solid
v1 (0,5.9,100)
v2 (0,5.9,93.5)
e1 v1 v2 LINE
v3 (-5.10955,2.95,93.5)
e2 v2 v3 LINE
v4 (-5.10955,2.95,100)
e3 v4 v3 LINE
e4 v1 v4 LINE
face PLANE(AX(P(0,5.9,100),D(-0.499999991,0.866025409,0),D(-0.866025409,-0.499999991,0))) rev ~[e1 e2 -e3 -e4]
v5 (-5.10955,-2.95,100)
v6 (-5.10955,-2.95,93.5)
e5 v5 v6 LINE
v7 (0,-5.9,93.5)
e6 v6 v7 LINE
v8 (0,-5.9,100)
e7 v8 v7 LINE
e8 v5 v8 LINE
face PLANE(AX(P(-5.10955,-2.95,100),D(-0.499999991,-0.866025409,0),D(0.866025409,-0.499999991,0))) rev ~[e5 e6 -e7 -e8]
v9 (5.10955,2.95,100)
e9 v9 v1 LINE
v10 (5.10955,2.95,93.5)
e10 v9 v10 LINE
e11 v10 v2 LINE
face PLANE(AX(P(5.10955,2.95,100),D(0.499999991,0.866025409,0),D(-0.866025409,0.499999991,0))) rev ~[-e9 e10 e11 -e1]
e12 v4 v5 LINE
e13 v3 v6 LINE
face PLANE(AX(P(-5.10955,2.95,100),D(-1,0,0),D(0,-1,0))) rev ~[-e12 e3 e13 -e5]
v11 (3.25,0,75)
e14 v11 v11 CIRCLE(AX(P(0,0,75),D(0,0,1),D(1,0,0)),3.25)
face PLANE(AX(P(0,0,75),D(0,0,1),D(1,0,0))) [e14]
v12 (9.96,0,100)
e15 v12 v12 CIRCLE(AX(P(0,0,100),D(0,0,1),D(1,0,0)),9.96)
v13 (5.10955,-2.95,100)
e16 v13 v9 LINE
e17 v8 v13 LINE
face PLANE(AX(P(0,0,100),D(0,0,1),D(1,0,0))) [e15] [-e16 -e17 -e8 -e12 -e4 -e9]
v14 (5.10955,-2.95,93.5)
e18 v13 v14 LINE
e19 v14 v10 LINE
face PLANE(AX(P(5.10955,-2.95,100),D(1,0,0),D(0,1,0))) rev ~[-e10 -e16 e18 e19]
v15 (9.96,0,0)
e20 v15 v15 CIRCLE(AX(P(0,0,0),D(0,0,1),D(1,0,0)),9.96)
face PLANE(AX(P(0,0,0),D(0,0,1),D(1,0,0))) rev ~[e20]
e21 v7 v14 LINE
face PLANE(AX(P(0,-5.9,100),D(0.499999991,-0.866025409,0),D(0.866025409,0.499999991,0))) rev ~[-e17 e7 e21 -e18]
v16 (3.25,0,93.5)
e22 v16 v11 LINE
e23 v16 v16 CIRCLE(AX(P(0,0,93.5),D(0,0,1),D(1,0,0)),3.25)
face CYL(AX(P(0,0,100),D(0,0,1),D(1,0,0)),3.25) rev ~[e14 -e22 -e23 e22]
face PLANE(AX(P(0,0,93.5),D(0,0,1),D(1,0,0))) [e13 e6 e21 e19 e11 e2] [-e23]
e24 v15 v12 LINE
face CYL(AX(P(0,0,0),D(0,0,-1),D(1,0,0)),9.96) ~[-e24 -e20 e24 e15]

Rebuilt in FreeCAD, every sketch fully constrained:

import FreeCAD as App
import Part
import Sketcher
from FreeCAD import Vector
Q = App.Units.Quantity

doc = App.newDocument("Part")
body = doc.addObject("PartDesign::Body", "Body")

# Sketch on XY plane
sketch1 = body.newObject("Sketcher::SketchObject", "Sketch")
sketch1.AttachmentSupport = (doc.getObject("XY_Plane"), [""])
sketch1.MapMode = "FlatFace"
sketch1.addGeometry(Part.Circle(Vector(0, 0, 0), Vector(0, 0, 1), 10), False)
sketch1.addConstraint(Sketcher.Constraint("Coincident", 0, 3, -1, 1))
sketch1.addConstraint(Sketcher.Constraint("Diameter", 0, Q("19.92 mm")))
pad1 = body.newObject("PartDesign::Pad", "Pad")
pad1.Profile = sketch1
pad1.Length = 100

# Sketch on XY plane
sketch2 = body.newObject("Sketcher::SketchObject", "Sketch001")
sketch2.AttachmentSupport = (doc.getObject("XY_Plane"), [""])
sketch2.MapMode = "FlatFace"
sketch2.AttachmentOffset = App.Placement(Vector(0, 0, 100), App.Rotation())
sketch2.addGeometry(Part.Circle(Vector(0, 0, 0), Vector(0, 0, 1), 3.2), False)
sketch2.addConstraint(Sketcher.Constraint("Coincident", 0, 3, -1, 1))
sketch2.addConstraint(Sketcher.Constraint("Diameter", 0, Q("6.5 mm")))
pocket1 = body.newObject("PartDesign::Pocket", "Pocket")
pocket1.Profile = sketch2
pocket1.Length = 25

# Sketch on XY plane
sketch3 = body.newObject("Sketcher::SketchObject", "Sketch002")
sketch3.AttachmentSupport = (doc.getObject("XY_Plane"), [""])
sketch3.MapMode = "FlatFace"
sketch3.AttachmentOffset = App.Placement(Vector(0, 0, 100), App.Rotation())
sketch3.addGeometry(Part.LineSegment(Vector(5, 3, 0), Vector(0, 6, 0)), False)
sketch3.addGeometry(Part.LineSegment(Vector(0, 6, 0), Vector(-5, 3, 0)), False)
sketch3.addGeometry(Part.LineSegment(Vector(-5, 3, 0), Vector(-5, -3, 0)), False)
sketch3.addGeometry(Part.LineSegment(Vector(-5, -3, 0), Vector(0, -6, 0)), False)
sketch3.addGeometry(Part.LineSegment(Vector(0, -6, 0), Vector(5, -3, 0)), False)
sketch3.addGeometry(Part.LineSegment(Vector(5, -3, 0), Vector(5, 3, 0)), False)
sketch3.addConstraint(Sketcher.Constraint("Coincident", 0, 2, 1, 1))
sketch3.addConstraint(Sketcher.Constraint("Coincident", 1, 2, 2, 1))
sketch3.addConstraint(Sketcher.Constraint("Coincident", 2, 2, 3, 1))
sketch3.addConstraint(Sketcher.Constraint("Coincident", 3, 2, 4, 1))
sketch3.addConstraint(Sketcher.Constraint("Coincident", 4, 2, 5, 1))
sketch3.addConstraint(Sketcher.Constraint("Coincident", 5, 2, 0, 1))
sketch3.addConstraint(Sketcher.Constraint("Vertical", 2))
sketch3.addConstraint(Sketcher.Constraint("Vertical", 5))
sketch3.addConstraint(Sketcher.Constraint("Symmetric", 0, 2, 3, 2, -1, 1))
sketch3.addConstraint(Sketcher.Constraint("Symmetric", 1, 2, 4, 2, -1, 1))
sketch3.addConstraint(Sketcher.Constraint("PointOnObject", 0, 2, -2))
sketch3.addConstraint(Sketcher.Constraint("Parallel", 0, 3))
sketch3.addConstraint(Sketcher.Constraint("Horizontal", 2, 2, 4, 2))
sketch3.addConstraint(Sketcher.Constraint("Angle", 0, Q("150.000001 deg")))
sketch3.addConstraint(Sketcher.Constraint("DistanceY", 2, 2, 2, 1, Q("5.9 mm")))
sketch3.addConstraint(Sketcher.Constraint("Distance", 0, Q("5.9 mm")))
pocket2 = body.newObject("PartDesign::Pocket", "Pocket001")
pocket2.Profile = sketch3
pocket2.Length = 6.5

doc.recompute()
